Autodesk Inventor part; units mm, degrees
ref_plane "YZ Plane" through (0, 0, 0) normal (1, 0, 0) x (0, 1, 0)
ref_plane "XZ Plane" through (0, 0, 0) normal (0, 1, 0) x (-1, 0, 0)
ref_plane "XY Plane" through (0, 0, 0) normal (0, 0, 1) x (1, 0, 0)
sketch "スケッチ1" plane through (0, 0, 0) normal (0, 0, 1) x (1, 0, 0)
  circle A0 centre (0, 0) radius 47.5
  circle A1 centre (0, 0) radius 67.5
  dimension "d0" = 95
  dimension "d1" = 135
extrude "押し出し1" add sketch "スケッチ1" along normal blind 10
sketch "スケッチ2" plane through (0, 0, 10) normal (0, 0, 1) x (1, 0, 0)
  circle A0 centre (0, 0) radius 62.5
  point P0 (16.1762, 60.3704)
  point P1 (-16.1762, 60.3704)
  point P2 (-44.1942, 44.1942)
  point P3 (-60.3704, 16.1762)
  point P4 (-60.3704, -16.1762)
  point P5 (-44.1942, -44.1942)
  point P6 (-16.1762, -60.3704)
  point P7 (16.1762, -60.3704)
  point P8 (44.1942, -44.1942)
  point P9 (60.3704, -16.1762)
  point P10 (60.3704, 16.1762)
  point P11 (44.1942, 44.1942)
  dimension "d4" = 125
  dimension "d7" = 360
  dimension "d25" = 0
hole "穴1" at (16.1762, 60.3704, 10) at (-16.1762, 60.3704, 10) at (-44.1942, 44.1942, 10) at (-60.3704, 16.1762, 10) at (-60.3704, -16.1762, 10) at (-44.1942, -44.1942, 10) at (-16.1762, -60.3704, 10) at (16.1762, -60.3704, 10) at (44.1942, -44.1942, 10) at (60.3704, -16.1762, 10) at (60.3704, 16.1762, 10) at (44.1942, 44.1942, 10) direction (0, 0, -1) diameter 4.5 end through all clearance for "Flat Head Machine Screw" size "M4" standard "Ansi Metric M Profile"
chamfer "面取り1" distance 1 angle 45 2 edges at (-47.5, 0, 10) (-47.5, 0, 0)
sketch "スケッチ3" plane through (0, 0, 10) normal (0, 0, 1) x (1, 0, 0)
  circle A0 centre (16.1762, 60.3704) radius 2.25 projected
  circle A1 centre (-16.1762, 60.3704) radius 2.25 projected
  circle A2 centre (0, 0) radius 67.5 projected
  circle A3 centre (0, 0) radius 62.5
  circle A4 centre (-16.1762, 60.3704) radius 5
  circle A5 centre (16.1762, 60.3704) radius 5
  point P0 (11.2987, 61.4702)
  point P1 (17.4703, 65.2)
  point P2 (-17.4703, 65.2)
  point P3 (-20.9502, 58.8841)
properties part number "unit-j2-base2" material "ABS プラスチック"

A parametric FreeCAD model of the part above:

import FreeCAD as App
import Part
import Sketcher

V = App.Vector
Q = App.Units.Quantity


def edges_at(feature, points):
    """Names of the edges that pass closest to the given points."""
    edges = feature.Shape.Edges
    near = lambda p: min(range(len(edges)), key=lambda i: edges[i].distToShape(Part.Vertex(*p))[0])
    return sorted({f"Edge{near(p) + 1}" for p in points})

doc = App.newDocument("Part")
body = doc.addObject("PartDesign::Body", "Body")

# Sketch on XY plane
sketch1 = doc.addObject("Sketcher::SketchObject", "Sketch")
body.addObject(sketch1)
sketch1.AttachmentSupport = (doc.XY_Plane, [""])
sketch1.MapMode = "FlatFace"
sketch1.addGeometry([
    Part.Circle(V(0, 0, 0), V(0, 0, 1), 68),
    Part.Circle(V(0, 0, 0), V(0, 0, 1), 48),
], False)
sketch1.addConstraint([
    Sketcher.Constraint("Coincident", 0, 3, -1, 1),
    Sketcher.Constraint("Coincident", 1, 3, -1, 1),
    Sketcher.Constraint("Diameter", 0, Q("135 mm")),
    Sketcher.Constraint("Diameter", 1, Q("95 mm")),
])
pad1 = doc.addObject("PartDesign::Pad", "Pad")
body.addObject(pad1)
pad1.Profile = sketch1
pad1.Length = 10

# Sketch on XY plane
sketch2 = doc.addObject("Sketcher::SketchObject", "Sketch001")
body.addObject(sketch2)
sketch2.AttachmentSupport = (doc.XY_Plane, [""])
sketch2.MapMode = "FlatFace"
sketch2.AttachmentOffset = App.Placement(V(0, 0, 10), App.Rotation())
sketch2.addGeometry([
    Part.Circle(V(16.2, 60.4, 0), V(0, 0, 1), 2.2),  # 0
    Part.Circle(V(-16.2, 60.4, 0), V(0, 0, 1), 2.2),  # 1
    Part.Circle(V(-44.2, 44.2, 0), V(0, 0, 1), 2.2),  # 2
    Part.Circle(V(-60.4, 16.2, 0), V(0, 0, 1), 2.2),  # 3
    Part.Circle(V(-60.4, -16.2, 0), V(0, 0, 1), 2.2),  # 4
    Part.Circle(V(-44.2, -44.2, 0), V(0, 0, 1), 2.2),  # 5
    Part.Circle(V(-16.2, -60.4, 0), V(0, 0, 1), 2.2),  # 6
    Part.Circle(V(16.2, -60.4, 0), V(0, 0, 1), 2.2),  # 7
    Part.Circle(V(44.2, -44.2, 0), V(0, 0, 1), 2.2),  # 8
    Part.Circle(V(60.4, -16.2, 0), V(0, 0, 1), 2.2),  # 9
    Part.Circle(V(60.4, 16.2, 0), V(0, 0, 1), 2.2),  # 10
    Part.Circle(V(44.2, 44.2, 0), V(0, 0, 1), 2.2),  # 11
], False)
sketch2.addConstraint([
    Sketcher.Constraint("Equal", 0, 1),
    Sketcher.Constraint("Equal", 1, 2),
    Sketcher.Constraint("Equal", 2, 3),
    Sketcher.Constraint("Equal", 3, 4),
    Sketcher.Constraint("Equal", 4, 5),
    Sketcher.Constraint("Equal", 5, 6),
    Sketcher.Constraint("Equal", 6, 7),
    Sketcher.Constraint("Equal", 7, 8),
    Sketcher.Constraint("Equal", 8, 9),
    Sketcher.Constraint("Equal", 9, 10),
    Sketcher.Constraint("Equal", 10, 11),
    Sketcher.Constraint("Symmetric", 0, 3, 6, 3, -1, 1),
    Sketcher.Constraint("Symmetric", 1, 3, 7, 3, -1, 1),
    Sketcher.Constraint("Symmetric", 2, 3, 8, 3, -1, 1),
    Sketcher.Constraint("Symmetric", 3, 3, 9, 3, -1, 1),
    Sketcher.Constraint("Symmetric", 4, 3, 10, 3, -1, 1),
    Sketcher.Constraint("Symmetric", 5, 3, 11, 3, -1, 1),
    Sketcher.Constraint("Symmetric", 0, 3, 1, 3, -2),
    Sketcher.Constraint("Symmetric", 5, 3, 8, 3, -2),
    Sketcher.Constraint("Symmetric", 4, 3, 9, 3, -2),
    Sketcher.Constraint("Diameter", 0, Q("4.5 mm")),
    Sketcher.Constraint("DistanceX", 2, 3, 1, 3, Q("28.018 mm")),
    Sketcher.Constraint("DistanceY", 3, 3, 2, 3, Q("28.018 mm")),
    Sketcher.Constraint("DistanceX", -1, 1, 0, 3, Q("16.1762 mm")),
    Sketcher.Constraint("DistanceY", -1, 1, 0, 3, Q("60.3704 mm")),
    Sketcher.Constraint("DistanceY", -1, 1, 2, 3, Q("44.1942 mm")),
    Sketcher.Constraint("DistanceX", 3, 3, -1, 1, Q("60.3704 mm")),
])
doc.recompute()
hole = doc.addObject("PartDesign::Hole", "Hole")
body.addObject(hole)
hole.Profile = sketch2
hole.ThreadType = "None"
hole.Diameter = 4.5
hole.DepthType = "ThroughAll"
doc.recompute()

chamfer = doc.addObject("PartDesign::Chamfer", "Chamfer")
body.addObject(chamfer)
chamfer.Base = (hole, edges_at(hole, [(-47.5, 0, 10), (-47.5, 0, 0)]))
chamfer.Size = 1

doc.recompute()
